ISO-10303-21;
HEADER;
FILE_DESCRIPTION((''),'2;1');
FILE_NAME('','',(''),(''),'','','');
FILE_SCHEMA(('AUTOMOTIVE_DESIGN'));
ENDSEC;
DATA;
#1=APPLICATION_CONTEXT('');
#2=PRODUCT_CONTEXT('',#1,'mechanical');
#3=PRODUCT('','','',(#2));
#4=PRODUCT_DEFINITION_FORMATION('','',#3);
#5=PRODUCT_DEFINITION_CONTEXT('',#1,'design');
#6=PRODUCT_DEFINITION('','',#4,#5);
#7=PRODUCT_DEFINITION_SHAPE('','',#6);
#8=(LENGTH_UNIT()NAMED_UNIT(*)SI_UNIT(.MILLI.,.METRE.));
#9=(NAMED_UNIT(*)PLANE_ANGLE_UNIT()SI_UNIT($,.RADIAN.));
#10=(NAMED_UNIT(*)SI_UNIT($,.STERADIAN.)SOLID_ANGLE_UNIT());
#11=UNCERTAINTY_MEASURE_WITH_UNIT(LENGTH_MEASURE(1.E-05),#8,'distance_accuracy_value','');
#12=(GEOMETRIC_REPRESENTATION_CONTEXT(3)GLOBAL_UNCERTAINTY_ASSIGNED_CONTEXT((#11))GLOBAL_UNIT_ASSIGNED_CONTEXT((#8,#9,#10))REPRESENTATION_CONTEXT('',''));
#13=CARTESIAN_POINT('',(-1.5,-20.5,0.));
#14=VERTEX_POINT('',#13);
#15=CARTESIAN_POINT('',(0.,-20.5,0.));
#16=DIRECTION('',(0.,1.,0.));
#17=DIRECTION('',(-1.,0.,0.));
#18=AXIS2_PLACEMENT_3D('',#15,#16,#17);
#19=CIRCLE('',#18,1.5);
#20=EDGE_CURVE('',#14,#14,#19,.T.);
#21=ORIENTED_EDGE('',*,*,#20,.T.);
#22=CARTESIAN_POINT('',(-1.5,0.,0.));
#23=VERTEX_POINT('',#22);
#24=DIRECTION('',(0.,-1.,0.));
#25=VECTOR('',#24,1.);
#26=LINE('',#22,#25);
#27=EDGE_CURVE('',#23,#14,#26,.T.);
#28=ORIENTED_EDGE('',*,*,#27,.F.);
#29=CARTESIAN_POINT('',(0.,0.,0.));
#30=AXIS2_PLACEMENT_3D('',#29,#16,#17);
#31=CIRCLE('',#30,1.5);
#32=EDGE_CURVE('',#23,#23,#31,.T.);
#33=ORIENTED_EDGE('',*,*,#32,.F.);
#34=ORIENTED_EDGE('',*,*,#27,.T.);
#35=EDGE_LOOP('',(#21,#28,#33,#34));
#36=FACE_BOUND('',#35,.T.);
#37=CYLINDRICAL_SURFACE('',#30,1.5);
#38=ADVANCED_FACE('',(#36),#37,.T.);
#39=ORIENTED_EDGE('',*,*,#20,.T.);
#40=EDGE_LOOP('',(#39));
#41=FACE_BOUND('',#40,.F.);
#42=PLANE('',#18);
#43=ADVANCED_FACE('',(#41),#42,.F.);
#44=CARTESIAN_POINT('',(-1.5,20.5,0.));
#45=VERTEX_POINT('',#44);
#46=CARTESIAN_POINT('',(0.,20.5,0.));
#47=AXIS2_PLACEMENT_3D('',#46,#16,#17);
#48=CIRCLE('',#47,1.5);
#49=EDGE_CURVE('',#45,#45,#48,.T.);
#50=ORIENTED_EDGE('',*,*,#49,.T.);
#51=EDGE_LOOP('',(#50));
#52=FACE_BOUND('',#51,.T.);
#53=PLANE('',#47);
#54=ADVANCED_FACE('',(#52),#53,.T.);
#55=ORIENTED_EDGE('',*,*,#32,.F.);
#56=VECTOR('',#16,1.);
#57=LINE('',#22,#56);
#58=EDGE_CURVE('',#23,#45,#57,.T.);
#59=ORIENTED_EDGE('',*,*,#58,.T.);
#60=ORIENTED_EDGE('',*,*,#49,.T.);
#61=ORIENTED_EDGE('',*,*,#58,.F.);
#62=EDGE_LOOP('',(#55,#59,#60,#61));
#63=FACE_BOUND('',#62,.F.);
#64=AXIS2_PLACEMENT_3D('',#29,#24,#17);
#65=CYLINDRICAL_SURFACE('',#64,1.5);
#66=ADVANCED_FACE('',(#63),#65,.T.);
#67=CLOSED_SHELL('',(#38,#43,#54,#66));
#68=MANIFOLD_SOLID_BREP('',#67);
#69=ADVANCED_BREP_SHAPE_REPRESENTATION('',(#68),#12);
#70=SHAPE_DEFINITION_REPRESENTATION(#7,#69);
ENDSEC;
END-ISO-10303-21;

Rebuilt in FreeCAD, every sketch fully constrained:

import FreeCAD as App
import Part
import Sketcher
from FreeCAD import Vector

doc = App.newDocument("Part")
body = doc.addObject("PartDesign::Body", "Body")

# Sketch on XZ plane
sketch1 = body.newObject("Sketcher::SketchObject", "Sketch")
sketch1.AttachmentSupport = (doc.getObject("XZ_Plane"), [""])
sketch1.MapMode = "FlatFace"
sketch1.addGeometry(Part.Circle(Vector(0, 0, 0), Vector(0, 0, 1), 1.5), False)
sketch1.addConstraint([
    Sketcher.Constraint("Coincident", 0, 3, -1, 1),
    Sketcher.Constraint("Diameter", 0, 3.0),
])
pad1 = body.newObject("PartDesign::Pad", "Pad")
pad1.Profile = sketch1
pad1.Length = 41
pad1.Midplane = True

doc.recompute()
